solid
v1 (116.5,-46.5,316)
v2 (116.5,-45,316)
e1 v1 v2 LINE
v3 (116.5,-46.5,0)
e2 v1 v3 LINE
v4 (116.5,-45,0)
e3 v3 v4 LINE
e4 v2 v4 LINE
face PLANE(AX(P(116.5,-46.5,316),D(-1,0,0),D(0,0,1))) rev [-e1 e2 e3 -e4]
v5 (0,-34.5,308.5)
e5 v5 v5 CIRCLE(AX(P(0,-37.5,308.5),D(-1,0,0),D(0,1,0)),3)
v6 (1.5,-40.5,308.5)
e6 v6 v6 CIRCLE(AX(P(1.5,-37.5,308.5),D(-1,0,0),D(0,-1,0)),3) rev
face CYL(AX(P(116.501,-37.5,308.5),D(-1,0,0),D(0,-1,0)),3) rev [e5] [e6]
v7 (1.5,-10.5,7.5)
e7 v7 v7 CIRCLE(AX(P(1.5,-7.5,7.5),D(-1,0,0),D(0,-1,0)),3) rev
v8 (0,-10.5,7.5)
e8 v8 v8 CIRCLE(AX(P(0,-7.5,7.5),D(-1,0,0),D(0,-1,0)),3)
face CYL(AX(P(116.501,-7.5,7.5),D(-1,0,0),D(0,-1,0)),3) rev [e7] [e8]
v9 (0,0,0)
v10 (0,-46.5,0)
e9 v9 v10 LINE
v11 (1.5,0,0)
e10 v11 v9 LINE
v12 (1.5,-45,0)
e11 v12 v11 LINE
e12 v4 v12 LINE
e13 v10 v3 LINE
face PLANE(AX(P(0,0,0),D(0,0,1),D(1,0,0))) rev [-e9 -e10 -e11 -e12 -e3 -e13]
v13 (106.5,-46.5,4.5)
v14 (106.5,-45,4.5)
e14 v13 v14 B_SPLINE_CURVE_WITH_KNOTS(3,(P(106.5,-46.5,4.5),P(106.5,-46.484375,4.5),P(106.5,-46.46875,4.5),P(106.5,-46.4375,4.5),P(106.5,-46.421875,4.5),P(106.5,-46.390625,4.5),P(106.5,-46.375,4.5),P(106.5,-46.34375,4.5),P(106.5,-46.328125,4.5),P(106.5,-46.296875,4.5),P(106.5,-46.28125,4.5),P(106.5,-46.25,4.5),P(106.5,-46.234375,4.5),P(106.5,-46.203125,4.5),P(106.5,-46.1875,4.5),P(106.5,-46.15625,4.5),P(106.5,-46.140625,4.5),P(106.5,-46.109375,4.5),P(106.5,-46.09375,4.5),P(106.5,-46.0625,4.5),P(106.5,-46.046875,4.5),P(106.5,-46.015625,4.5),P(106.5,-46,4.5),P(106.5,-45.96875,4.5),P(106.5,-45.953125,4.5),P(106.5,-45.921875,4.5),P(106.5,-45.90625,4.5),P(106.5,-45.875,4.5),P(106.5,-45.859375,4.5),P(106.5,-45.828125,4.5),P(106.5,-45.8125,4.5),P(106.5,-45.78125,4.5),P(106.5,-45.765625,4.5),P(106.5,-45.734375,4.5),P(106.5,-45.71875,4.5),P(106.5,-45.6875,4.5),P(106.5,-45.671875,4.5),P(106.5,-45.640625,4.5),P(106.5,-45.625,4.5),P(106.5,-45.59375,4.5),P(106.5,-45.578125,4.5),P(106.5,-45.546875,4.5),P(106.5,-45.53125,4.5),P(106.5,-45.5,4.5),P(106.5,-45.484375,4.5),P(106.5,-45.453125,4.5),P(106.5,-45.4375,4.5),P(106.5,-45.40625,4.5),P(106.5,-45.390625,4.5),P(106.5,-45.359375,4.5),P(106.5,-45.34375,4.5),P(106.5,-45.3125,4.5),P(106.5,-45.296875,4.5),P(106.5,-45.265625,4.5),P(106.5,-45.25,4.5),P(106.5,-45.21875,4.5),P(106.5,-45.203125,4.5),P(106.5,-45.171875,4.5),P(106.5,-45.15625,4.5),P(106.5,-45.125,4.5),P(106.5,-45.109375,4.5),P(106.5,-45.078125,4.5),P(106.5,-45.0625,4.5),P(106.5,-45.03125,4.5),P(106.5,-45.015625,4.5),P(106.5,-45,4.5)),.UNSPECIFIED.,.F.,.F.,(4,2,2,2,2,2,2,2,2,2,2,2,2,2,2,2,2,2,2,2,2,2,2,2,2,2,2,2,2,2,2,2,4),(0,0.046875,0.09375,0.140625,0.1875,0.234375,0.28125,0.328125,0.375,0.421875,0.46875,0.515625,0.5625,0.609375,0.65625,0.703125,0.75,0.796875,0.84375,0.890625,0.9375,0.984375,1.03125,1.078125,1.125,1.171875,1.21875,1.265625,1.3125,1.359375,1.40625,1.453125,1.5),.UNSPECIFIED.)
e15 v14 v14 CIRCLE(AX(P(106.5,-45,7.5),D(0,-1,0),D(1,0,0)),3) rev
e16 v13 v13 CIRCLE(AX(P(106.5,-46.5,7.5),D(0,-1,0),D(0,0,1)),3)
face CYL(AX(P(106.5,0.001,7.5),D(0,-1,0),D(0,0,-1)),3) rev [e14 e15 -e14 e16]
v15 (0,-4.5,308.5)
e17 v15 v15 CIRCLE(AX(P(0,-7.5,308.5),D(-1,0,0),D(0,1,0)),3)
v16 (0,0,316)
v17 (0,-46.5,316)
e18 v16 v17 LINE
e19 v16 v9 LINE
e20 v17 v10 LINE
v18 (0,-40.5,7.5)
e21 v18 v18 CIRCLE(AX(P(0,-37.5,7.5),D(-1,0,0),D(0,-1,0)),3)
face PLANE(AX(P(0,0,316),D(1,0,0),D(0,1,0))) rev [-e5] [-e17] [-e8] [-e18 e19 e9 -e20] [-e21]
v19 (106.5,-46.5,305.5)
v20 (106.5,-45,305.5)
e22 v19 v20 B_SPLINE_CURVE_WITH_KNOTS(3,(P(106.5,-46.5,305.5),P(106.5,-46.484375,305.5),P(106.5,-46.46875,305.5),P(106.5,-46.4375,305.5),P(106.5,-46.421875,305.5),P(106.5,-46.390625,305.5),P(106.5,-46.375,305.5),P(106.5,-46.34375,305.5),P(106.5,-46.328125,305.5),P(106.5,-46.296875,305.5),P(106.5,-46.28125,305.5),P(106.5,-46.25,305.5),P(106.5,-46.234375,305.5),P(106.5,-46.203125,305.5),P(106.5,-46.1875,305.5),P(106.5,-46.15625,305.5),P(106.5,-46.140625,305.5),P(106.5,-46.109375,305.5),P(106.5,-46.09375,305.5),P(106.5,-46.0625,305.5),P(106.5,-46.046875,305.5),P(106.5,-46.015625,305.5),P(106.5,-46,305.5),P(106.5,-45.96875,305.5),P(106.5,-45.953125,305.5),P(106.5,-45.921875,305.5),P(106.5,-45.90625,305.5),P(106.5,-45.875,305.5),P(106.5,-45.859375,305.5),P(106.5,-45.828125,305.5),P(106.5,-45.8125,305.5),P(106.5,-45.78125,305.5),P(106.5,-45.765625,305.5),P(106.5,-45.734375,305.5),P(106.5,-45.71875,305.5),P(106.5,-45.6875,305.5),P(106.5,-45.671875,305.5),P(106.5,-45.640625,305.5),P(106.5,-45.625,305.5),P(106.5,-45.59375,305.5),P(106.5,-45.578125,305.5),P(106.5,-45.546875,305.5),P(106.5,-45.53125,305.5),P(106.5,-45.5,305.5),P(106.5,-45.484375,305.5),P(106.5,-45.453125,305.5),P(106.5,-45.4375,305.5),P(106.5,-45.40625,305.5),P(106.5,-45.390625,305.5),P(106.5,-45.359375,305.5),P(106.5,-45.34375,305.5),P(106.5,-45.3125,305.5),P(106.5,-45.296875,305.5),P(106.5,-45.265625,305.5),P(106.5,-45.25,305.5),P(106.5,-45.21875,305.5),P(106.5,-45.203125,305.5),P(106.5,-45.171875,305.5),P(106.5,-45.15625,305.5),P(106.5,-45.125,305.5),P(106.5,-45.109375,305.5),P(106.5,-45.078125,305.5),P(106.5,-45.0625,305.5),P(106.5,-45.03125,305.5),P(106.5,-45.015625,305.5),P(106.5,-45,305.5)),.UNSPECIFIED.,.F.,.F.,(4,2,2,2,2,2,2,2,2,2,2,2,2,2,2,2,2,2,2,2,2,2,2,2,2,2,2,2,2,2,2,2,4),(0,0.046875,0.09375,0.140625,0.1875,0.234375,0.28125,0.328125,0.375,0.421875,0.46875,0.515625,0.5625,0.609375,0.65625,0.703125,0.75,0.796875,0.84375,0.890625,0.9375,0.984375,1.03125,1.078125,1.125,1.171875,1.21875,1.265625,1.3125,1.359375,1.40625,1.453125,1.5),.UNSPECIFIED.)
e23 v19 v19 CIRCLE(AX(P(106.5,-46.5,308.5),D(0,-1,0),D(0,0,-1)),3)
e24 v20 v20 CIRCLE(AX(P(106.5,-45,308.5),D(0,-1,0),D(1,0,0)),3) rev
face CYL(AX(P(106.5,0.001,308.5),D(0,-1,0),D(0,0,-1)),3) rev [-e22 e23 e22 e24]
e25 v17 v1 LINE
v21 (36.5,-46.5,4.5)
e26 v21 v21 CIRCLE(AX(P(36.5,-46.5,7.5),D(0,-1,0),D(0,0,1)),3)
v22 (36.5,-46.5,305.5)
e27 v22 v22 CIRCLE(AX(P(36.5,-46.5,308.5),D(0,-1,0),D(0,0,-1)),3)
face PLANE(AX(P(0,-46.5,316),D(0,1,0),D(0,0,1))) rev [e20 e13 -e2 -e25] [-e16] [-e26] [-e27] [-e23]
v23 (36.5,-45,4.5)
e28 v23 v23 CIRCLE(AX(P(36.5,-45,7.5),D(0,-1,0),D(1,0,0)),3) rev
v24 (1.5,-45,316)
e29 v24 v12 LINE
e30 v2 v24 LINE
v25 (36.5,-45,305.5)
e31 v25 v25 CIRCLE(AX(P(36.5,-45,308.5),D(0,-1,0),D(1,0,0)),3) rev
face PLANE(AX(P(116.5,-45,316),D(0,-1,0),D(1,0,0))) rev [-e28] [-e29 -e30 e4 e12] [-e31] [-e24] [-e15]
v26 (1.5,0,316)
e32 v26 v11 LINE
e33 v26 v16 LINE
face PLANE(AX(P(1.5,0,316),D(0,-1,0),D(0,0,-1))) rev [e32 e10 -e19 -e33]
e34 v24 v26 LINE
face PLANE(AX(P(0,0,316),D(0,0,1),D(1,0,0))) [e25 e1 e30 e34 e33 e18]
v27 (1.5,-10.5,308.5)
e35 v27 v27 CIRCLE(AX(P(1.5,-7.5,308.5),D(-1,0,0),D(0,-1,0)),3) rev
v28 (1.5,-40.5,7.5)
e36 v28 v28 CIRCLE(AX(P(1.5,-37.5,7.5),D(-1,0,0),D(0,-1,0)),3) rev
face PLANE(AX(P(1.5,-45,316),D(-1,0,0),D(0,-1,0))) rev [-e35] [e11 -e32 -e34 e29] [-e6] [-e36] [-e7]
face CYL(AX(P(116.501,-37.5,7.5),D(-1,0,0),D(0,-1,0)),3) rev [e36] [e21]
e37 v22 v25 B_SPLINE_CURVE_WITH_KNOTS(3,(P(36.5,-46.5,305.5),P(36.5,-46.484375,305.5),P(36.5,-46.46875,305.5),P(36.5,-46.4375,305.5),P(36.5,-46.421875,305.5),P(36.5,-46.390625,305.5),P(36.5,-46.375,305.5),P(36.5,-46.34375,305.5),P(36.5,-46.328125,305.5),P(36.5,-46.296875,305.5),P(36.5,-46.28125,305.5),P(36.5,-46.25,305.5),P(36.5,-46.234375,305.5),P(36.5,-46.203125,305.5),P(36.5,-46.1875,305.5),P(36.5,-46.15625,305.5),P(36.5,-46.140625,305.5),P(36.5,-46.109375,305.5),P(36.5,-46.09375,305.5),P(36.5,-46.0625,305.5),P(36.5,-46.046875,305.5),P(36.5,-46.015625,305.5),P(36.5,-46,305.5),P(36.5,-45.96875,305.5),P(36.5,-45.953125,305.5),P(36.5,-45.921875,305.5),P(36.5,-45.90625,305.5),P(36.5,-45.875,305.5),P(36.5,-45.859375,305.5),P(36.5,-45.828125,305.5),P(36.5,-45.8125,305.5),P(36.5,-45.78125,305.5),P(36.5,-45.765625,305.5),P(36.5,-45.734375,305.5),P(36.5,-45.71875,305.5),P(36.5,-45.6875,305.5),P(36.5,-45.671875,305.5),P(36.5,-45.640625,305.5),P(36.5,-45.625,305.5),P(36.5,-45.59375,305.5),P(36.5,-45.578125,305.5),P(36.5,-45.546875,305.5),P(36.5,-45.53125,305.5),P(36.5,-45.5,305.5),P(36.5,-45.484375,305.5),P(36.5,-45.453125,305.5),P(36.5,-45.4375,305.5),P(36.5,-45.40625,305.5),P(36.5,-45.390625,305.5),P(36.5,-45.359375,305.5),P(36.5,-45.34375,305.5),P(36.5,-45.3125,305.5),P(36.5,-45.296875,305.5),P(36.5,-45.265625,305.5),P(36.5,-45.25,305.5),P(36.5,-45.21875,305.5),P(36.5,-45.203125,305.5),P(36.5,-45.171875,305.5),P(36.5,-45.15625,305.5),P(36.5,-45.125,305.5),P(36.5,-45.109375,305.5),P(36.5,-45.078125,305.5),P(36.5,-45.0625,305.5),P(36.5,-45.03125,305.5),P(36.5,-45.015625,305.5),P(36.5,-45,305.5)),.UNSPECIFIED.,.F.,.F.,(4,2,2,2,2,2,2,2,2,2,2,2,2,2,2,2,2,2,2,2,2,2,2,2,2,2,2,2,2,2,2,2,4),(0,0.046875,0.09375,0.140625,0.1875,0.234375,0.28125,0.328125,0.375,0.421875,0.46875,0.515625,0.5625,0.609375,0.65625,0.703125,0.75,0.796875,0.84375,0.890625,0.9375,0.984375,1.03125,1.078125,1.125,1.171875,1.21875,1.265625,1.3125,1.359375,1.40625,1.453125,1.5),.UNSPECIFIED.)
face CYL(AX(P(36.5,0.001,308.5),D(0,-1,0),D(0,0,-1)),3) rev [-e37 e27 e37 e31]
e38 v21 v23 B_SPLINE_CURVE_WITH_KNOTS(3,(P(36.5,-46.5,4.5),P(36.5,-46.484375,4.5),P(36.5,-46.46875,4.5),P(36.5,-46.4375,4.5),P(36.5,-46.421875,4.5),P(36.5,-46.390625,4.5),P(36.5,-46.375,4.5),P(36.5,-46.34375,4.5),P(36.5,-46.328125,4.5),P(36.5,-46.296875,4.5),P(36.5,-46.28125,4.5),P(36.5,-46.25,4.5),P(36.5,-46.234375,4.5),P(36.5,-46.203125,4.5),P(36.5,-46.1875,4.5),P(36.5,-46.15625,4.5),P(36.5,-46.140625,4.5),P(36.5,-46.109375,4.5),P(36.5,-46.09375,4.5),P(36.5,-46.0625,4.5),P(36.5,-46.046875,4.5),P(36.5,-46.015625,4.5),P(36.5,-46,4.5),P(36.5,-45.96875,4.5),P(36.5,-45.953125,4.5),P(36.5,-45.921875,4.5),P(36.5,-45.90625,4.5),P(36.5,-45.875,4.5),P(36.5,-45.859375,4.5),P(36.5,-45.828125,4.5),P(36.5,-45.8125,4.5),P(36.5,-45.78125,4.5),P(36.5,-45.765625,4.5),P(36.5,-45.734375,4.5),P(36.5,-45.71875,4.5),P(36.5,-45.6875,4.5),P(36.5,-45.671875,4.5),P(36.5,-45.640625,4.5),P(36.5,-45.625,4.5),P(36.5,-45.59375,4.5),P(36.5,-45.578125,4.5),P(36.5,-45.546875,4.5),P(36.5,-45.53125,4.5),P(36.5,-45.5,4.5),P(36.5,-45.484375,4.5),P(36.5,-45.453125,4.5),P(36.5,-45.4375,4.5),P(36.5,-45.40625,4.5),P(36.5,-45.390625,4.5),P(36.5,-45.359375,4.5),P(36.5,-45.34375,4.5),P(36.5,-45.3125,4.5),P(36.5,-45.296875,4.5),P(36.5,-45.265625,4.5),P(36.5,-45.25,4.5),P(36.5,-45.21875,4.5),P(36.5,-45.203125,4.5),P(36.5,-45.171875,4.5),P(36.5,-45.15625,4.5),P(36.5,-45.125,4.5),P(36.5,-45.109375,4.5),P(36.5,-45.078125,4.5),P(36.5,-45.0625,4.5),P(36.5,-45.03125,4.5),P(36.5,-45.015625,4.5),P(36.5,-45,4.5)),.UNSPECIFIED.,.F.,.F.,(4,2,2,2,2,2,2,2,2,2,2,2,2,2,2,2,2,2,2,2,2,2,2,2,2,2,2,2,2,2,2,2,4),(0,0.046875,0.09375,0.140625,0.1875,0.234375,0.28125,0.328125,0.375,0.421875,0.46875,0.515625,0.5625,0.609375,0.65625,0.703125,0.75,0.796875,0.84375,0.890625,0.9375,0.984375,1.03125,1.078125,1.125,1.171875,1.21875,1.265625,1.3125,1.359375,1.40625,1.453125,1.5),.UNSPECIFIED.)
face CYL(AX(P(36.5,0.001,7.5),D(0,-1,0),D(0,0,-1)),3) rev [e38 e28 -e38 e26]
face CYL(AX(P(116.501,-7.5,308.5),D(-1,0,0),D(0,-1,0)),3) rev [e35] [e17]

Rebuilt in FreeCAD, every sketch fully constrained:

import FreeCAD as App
import Part
import Sketcher

V = App.Vector
Q = App.Units.Quantity

doc = App.newDocument("Part")
body = doc.addObject("PartDesign::Body", "Body")

sketch1 = body.newObject("Sketcher::SketchObject", "Sketch")
sketch1.AttachmentSupport = (doc.getObject("XY_Plane"), [""])
sketch1.MapMode = "FlatFace"
sketch1.addGeometry([
    Part.LineSegment(V(0, 0, 0), V(0, -46.5, 0)),
    Part.LineSegment(V(0, -46.5, 0), V(116.5, -46.5, 0)),
    Part.LineSegment(V(116.5, -46.5, 0), V(116.5, -45, 0)),
    Part.LineSegment(V(116.5, -45, 0), V(1.5, -45, 0)),
    Part.LineSegment(V(1.5, -45, 0), V(1.5, 0, 0)),
    Part.LineSegment(V(1.5, 0, 0), V(0, 0, 0)),
], False)
sketch1.addConstraint([
    Sketcher.Constraint("Coincident", 0, 2, 1, 1),
    Sketcher.Constraint("Coincident", 1, 2, 2, 1),
    Sketcher.Constraint("Coincident", 2, 2, 3, 1),
    Sketcher.Constraint("Coincident", 3, 2, 4, 1),
    Sketcher.Constraint("Coincident", 4, 2, 5, 1),
    Sketcher.Constraint("Coincident", 5, 2, 0, 1),
    Sketcher.Constraint("Vertical", 0),
    Sketcher.Constraint("Horizontal", 1),
    Sketcher.Constraint("Vertical", 2),
    Sketcher.Constraint("Horizontal", 3),
    Sketcher.Constraint("Vertical", 4),
    Sketcher.Constraint("Horizontal", 5),
    Sketcher.Constraint("Coincident", 5, 2, -1, 1),
    Sketcher.Constraint("Equal", 5, 2),
    Sketcher.Constraint("DistanceX", 3, 2, 3, 1, Q("115 mm")),
    Sketcher.Constraint("DistanceY", 4, 1, 4, 2, Q("45 mm")),
    Sketcher.Constraint("DistanceX", 1, 1, 1, 2, Q("116.5 mm")),
])
pad1 = body.newObject("PartDesign::Pad", "Pad")
pad1.Profile = sketch1
pad1.Length = 316

sketch2 = body.newObject("Sketcher::SketchObject", "Sketch001")
sketch2.AttachmentSupport = (doc.getObject("YZ_Plane"), [""])
sketch2.MapMode = "FlatFace"
sketch2.addGeometry(Part.Circle(V(-7.5, 7.5, 0), V(0, 0, 1), 3), False)
sketch2.addConstraint([
    Sketcher.Constraint("Diameter", 0, Q("6 mm")),
    Sketcher.Constraint("DistanceX", 0, 3, -1, 1, Q("7.5 mm")),
    Sketcher.Constraint("DistanceY", -1, 1, 0, 3, Q("7.5 mm")),
])
pocket1 = body.newObject("PartDesign::Pocket", "Pocket")
pocket1.Profile = sketch2
pocket1.Type = "UpToFirst"
pocket1.Reversed = True

sketch3 = body.newObject("Sketcher::SketchObject", "Sketch002")
sketch3.AttachmentSupport = (doc.getObject("YZ_Plane"), [""])
sketch3.MapMode = "FlatFace"
sketch3.addGeometry(Part.Circle(V(-37.5, 7.5, 0), V(0, 0, 1), 3), False)
sketch3.addConstraint([
    Sketcher.Constraint("Diameter", 0, Q("6 mm")),
    Sketcher.Constraint("DistanceX", 0, 3, -1, 1, Q("37.5 mm")),
    Sketcher.Constraint("DistanceY", -1, 1, 0, 3, Q("7.5 mm")),
])
pocket2 = body.newObject("PartDesign::Pocket", "Pocket001")
pocket2.Profile = sketch3
pocket2.Type = "UpToFirst"
pocket2.Reversed = True

sketch4 = body.newObject("Sketcher::SketchObject", "Sketch003")
sketch4.AttachmentSupport = (doc.getObject("YZ_Plane"), [""])
sketch4.MapMode = "FlatFace"
sketch4.addGeometry(Part.Circle(V(-37.5, 308.5, 0), V(0, 0, 1), 3), False)
sketch4.addConstraint([
    Sketcher.Constraint("Diameter", 0, Q("6 mm")),
    Sketcher.Constraint("DistanceX", 0, 3, -1, 1, Q("37.5 mm")),
    Sketcher.Constraint("DistanceY", -1, 1, 0, 3, Q("308.5 mm")),
])
pocket3 = body.newObject("PartDesign::Pocket", "Pocket002")
pocket3.Profile = sketch4
pocket3.Type = "UpToFirst"
pocket3.Reversed = True

sketch5 = body.newObject("Sketcher::SketchObject", "Sketch004")
sketch5.AttachmentSupport = (doc.getObject("YZ_Plane"), [""])
sketch5.MapMode = "FlatFace"
sketch5.addGeometry(Part.Circle(V(-7.5, 308.5, 0), V(0, 0, 1), 3), False)
sketch5.addConstraint([
    Sketcher.Constraint("Diameter", 0, Q("6 mm")),
    Sketcher.Constraint("DistanceX", 0, 3, -1, 1, Q("7.5 mm")),
    Sketcher.Constraint("DistanceY", -1, 1, 0, 3, Q("308.5 mm")),
])
pocket4 = body.newObject("PartDesign::Pocket", "Pocket003")
pocket4.Profile = sketch5
pocket4.Type = "UpToFirst"
pocket4.Reversed = True

sketch6 = body.newObject("Sketcher::SketchObject", "Sketch005")
sketch6.AttachmentSupport = (doc.getObject("XZ_Plane"), [""])
sketch6.MapMode = "FlatFace"
sketch6.AttachmentOffset = App.Placement(V(0, 0, 46.5), App.Rotation())
sketch6.addGeometry(Part.Circle(V(106.5, 308.5, 0), V(0, 0, 1), 3), False)
sketch6.addConstraint([
    Sketcher.Constraint("Diameter", 0, Q("6 mm")),
    Sketcher.Constraint("DistanceX", -1, 1, 0, 3, Q("106.5 mm")),
    Sketcher.Constraint("DistanceY", -1, 1, 0, 3, Q("308.5 mm")),
])
pocket5 = body.newObject("PartDesign::Pocket", "Pocket004")
pocket5.Profile = sketch6
pocket5.Type = "UpToFirst"

sketch7 = body.newObject("Sketcher::SketchObject", "Sketch006")
sketch7.AttachmentSupport = (doc.getObject("XZ_Plane"), [""])
sketch7.MapMode = "FlatFace"
sketch7.AttachmentOffset = App.Placement(V(0, 0, 46.5), App.Rotation())
sketch7.addGeometry(Part.Circle(V(36.5, 308.5, 0), V(0, 0, 1), 3), False)
sketch7.addConstraint([
    Sketcher.Constraint("Diameter", 0, Q("6 mm")),
    Sketcher.Constraint("DistanceX", -1, 1, 0, 3, Q("36.5 mm")),
    Sketcher.Constraint("DistanceY", -1, 1, 0, 3, Q("308.5 mm")),
])
pocket6 = body.newObject("PartDesign::Pocket", "Pocket005")
pocket6.Profile = sketch7
pocket6.Type = "UpToFirst"

sketch8 = body.newObject("Sketcher::SketchObject", "Sketch007")
sketch8.AttachmentSupport = (doc.getObject("XZ_Plane"), [""])
sketch8.MapMode = "FlatFace"
sketch8.AttachmentOffset = App.Placement(V(0, 0, 46.5), App.Rotation())
sketch8.addGeometry(Part.Circle(V(106.5, 7.5, 0), V(0, 0, 1), 3), False)
sketch8.addConstraint([
    Sketcher.Constraint("Diameter", 0, Q("6 mm")),
    Sketcher.Constraint("DistanceX", -1, 1, 0, 3, Q("106.5 mm")),
    Sketcher.Constraint("DistanceY", -1, 1, 0, 3, Q("7.5 mm")),
])
pocket7 = body.newObject("PartDesign::Pocket", "Pocket006")
pocket7.Profile = sketch8
pocket7.Type = "UpToFirst"

sketch9 = body.newObject("Sketcher::SketchObject", "Sketch008")
sketch9.AttachmentSupport = (doc.getObject("XZ_Plane"), [""])
sketch9.MapMode = "FlatFace"
sketch9.AttachmentOffset = App.Placement(V(0, 0, 46.5), App.Rotation())
sketch9.addGeometry(Part.Circle(V(36.5, 7.5, 0), V(0, 0, 1), 3), False)
sketch9.addConstraint([
    Sketcher.Constraint("Diameter", 0, Q("6 mm")),
    Sketcher.Constraint("DistanceX", -1, 1, 0, 3, Q("36.5 mm")),
    Sketcher.Constraint("DistanceY", -1, 1, 0, 3, Q("7.5 mm")),
])
pocket8 = body.newObject("PartDesign::Pocket", "Pocket007")
pocket8.Profile = sketch9
pocket8.Type = "UpToFirst"

doc.recompute()
